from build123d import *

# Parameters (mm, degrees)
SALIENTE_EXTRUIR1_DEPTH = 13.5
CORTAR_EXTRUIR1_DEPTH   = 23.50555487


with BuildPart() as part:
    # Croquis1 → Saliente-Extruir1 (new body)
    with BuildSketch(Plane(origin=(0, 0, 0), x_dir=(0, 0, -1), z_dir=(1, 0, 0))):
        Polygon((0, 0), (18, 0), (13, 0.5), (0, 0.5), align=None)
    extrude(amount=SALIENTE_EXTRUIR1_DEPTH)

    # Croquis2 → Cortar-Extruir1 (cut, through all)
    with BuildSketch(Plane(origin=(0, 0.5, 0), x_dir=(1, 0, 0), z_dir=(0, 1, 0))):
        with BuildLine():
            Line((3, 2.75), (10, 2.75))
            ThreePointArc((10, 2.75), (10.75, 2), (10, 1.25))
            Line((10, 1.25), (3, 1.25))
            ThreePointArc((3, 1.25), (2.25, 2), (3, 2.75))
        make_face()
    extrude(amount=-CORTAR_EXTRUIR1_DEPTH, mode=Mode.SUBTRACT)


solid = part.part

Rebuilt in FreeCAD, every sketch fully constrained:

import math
import FreeCAD as App
import Part
import Sketcher
Q = App.Units.Quantity

doc = App.newDocument("Part")
params = doc.addObject("Spreadsheet::Sheet", "Params")
for row, (alias, value) in enumerate([
    ("sketch1_height", "18 mm"),
    ("sketch1_height2", "13 mm"),
    ("sketch1_width", "0.5 mm"),
    ("pad1_length", "13.5 mm"),
    ("sketch2_width", "7 mm"),
    ("sketch2_radius", "0.75 mm"),
], start=1):
    params.set(f"A{row}", alias)
    params.set(f"B{row}", "=" + value)
    params.setAlias(f"B{row}", alias)

body = doc.addObject("PartDesign::Body", "Body")

sketch1 = body.newObject("Sketcher::SketchObject", "Sketch")
sketch1.AttachmentSupport = (doc.getObject("YZ_Plane"), [""])
sketch1.MapMode = "FlatFace"
sketch1.addGeometry([
    Part.LineSegment(App.Vector(0, 0, 0), App.Vector(0, -18, 0)),
    Part.LineSegment(App.Vector(0, -18, 0), App.Vector(0.5, -13, 0)),
    Part.LineSegment(App.Vector(0.5, -13, 0), App.Vector(0.5, 0, 0)),
    Part.LineSegment(App.Vector(0.5, 0, 0), App.Vector(0, 0, 0)),
], False)
sketch1.addConstraint([
    Sketcher.Constraint("Coincident", 0, 2, 1, 1),
    Sketcher.Constraint("Coincident", 1, 2, 2, 1),
    Sketcher.Constraint("Coincident", 2, 2, 3, 1),
    Sketcher.Constraint("Coincident", 3, 2, 0, 1),
    Sketcher.Constraint("Vertical", 0),
    Sketcher.Constraint("Vertical", 2),
    Sketcher.Constraint("Horizontal", 3),
    Sketcher.Constraint("Coincident", 3, 2, -1, 1),
    Sketcher.Constraint("DistanceY", 0, 2, 0, 1, Q("18 mm")),
    Sketcher.Constraint("DistanceY", 2, 1, 2, 2, Q("13 mm")),
    Sketcher.Constraint("DistanceX", 3, 2, 3, 1, Q("0.5 mm")),
])
sketch1.setExpression("Constraints[8]", "Params.sketch1_height")
sketch1.setExpression("Constraints[9]", "Params.sketch1_height2")
sketch1.setExpression("Constraints[10]", "Params.sketch1_width")
pad1 = body.newObject("PartDesign::Pad", "Pad")
pad1.Profile = sketch1
pad1.setExpression("Length", "Params.pad1_length")

sketch2 = body.newObject("Sketcher::SketchObject", "Sketch001")
sketch2.AttachmentSupport = (doc.getObject("XZ_Plane"), [""])
sketch2.MapMode = "FlatFace"
sketch2.AttachmentOffset = App.Placement(App.Vector(0, 0, -0.5), App.Rotation())
sketch2.addGeometry([
    Part.LineSegment(App.Vector(10, -2.75, 0), App.Vector(3, -2.75, 0)),
    Part.ArcOfCircle(Part.Circle(App.Vector(3, -2, 0), App.Vector(0, 0, 1), 0.75), math.radians(90), math.radians(270)),
    Part.LineSegment(App.Vector(3, -1.25, 0), App.Vector(10, -1.25, 0)),
    Part.ArcOfCircle(Part.Circle(App.Vector(10, -2, 0), App.Vector(0, 0, 1), 0.75), math.radians(-90), math.radians(90)),
], False)
sketch2.addConstraint([
    Sketcher.Constraint("Tangent", 0, 2, 1, 2),
    Sketcher.Constraint("Tangent", 1, 1, 2, 1),
    Sketcher.Constraint("Tangent", 2, 2, 3, 2),
    Sketcher.Constraint("Tangent", 3, 1, 0, 1),
    Sketcher.Constraint("Horizontal", 0),
    Sketcher.Constraint("Horizontal", 2),
    Sketcher.Constraint("DistanceX", 0, 2, 0, 1, Q("7 mm")),
    Sketcher.Constraint("Radius", 1, Q("0.75 mm")),
    Sketcher.Constraint("DistanceX", -1, 1, 1, 3, Q("3 mm")),
    Sketcher.Constraint("DistanceY", 1, 3, -1, 1, Q("2 mm")),
])
sketch2.setExpression("Constraints[6]", "Params.sketch2_width")
sketch2.setExpression("Constraints[7]", "Params.sketch2_radius")
pocket1 = body.newObject("PartDesign::Pocket", "Pocket")
pocket1.Profile = sketch2
pocket1.Type = "ThroughAll"
pocket1.Reversed = True

doc.recompute()
